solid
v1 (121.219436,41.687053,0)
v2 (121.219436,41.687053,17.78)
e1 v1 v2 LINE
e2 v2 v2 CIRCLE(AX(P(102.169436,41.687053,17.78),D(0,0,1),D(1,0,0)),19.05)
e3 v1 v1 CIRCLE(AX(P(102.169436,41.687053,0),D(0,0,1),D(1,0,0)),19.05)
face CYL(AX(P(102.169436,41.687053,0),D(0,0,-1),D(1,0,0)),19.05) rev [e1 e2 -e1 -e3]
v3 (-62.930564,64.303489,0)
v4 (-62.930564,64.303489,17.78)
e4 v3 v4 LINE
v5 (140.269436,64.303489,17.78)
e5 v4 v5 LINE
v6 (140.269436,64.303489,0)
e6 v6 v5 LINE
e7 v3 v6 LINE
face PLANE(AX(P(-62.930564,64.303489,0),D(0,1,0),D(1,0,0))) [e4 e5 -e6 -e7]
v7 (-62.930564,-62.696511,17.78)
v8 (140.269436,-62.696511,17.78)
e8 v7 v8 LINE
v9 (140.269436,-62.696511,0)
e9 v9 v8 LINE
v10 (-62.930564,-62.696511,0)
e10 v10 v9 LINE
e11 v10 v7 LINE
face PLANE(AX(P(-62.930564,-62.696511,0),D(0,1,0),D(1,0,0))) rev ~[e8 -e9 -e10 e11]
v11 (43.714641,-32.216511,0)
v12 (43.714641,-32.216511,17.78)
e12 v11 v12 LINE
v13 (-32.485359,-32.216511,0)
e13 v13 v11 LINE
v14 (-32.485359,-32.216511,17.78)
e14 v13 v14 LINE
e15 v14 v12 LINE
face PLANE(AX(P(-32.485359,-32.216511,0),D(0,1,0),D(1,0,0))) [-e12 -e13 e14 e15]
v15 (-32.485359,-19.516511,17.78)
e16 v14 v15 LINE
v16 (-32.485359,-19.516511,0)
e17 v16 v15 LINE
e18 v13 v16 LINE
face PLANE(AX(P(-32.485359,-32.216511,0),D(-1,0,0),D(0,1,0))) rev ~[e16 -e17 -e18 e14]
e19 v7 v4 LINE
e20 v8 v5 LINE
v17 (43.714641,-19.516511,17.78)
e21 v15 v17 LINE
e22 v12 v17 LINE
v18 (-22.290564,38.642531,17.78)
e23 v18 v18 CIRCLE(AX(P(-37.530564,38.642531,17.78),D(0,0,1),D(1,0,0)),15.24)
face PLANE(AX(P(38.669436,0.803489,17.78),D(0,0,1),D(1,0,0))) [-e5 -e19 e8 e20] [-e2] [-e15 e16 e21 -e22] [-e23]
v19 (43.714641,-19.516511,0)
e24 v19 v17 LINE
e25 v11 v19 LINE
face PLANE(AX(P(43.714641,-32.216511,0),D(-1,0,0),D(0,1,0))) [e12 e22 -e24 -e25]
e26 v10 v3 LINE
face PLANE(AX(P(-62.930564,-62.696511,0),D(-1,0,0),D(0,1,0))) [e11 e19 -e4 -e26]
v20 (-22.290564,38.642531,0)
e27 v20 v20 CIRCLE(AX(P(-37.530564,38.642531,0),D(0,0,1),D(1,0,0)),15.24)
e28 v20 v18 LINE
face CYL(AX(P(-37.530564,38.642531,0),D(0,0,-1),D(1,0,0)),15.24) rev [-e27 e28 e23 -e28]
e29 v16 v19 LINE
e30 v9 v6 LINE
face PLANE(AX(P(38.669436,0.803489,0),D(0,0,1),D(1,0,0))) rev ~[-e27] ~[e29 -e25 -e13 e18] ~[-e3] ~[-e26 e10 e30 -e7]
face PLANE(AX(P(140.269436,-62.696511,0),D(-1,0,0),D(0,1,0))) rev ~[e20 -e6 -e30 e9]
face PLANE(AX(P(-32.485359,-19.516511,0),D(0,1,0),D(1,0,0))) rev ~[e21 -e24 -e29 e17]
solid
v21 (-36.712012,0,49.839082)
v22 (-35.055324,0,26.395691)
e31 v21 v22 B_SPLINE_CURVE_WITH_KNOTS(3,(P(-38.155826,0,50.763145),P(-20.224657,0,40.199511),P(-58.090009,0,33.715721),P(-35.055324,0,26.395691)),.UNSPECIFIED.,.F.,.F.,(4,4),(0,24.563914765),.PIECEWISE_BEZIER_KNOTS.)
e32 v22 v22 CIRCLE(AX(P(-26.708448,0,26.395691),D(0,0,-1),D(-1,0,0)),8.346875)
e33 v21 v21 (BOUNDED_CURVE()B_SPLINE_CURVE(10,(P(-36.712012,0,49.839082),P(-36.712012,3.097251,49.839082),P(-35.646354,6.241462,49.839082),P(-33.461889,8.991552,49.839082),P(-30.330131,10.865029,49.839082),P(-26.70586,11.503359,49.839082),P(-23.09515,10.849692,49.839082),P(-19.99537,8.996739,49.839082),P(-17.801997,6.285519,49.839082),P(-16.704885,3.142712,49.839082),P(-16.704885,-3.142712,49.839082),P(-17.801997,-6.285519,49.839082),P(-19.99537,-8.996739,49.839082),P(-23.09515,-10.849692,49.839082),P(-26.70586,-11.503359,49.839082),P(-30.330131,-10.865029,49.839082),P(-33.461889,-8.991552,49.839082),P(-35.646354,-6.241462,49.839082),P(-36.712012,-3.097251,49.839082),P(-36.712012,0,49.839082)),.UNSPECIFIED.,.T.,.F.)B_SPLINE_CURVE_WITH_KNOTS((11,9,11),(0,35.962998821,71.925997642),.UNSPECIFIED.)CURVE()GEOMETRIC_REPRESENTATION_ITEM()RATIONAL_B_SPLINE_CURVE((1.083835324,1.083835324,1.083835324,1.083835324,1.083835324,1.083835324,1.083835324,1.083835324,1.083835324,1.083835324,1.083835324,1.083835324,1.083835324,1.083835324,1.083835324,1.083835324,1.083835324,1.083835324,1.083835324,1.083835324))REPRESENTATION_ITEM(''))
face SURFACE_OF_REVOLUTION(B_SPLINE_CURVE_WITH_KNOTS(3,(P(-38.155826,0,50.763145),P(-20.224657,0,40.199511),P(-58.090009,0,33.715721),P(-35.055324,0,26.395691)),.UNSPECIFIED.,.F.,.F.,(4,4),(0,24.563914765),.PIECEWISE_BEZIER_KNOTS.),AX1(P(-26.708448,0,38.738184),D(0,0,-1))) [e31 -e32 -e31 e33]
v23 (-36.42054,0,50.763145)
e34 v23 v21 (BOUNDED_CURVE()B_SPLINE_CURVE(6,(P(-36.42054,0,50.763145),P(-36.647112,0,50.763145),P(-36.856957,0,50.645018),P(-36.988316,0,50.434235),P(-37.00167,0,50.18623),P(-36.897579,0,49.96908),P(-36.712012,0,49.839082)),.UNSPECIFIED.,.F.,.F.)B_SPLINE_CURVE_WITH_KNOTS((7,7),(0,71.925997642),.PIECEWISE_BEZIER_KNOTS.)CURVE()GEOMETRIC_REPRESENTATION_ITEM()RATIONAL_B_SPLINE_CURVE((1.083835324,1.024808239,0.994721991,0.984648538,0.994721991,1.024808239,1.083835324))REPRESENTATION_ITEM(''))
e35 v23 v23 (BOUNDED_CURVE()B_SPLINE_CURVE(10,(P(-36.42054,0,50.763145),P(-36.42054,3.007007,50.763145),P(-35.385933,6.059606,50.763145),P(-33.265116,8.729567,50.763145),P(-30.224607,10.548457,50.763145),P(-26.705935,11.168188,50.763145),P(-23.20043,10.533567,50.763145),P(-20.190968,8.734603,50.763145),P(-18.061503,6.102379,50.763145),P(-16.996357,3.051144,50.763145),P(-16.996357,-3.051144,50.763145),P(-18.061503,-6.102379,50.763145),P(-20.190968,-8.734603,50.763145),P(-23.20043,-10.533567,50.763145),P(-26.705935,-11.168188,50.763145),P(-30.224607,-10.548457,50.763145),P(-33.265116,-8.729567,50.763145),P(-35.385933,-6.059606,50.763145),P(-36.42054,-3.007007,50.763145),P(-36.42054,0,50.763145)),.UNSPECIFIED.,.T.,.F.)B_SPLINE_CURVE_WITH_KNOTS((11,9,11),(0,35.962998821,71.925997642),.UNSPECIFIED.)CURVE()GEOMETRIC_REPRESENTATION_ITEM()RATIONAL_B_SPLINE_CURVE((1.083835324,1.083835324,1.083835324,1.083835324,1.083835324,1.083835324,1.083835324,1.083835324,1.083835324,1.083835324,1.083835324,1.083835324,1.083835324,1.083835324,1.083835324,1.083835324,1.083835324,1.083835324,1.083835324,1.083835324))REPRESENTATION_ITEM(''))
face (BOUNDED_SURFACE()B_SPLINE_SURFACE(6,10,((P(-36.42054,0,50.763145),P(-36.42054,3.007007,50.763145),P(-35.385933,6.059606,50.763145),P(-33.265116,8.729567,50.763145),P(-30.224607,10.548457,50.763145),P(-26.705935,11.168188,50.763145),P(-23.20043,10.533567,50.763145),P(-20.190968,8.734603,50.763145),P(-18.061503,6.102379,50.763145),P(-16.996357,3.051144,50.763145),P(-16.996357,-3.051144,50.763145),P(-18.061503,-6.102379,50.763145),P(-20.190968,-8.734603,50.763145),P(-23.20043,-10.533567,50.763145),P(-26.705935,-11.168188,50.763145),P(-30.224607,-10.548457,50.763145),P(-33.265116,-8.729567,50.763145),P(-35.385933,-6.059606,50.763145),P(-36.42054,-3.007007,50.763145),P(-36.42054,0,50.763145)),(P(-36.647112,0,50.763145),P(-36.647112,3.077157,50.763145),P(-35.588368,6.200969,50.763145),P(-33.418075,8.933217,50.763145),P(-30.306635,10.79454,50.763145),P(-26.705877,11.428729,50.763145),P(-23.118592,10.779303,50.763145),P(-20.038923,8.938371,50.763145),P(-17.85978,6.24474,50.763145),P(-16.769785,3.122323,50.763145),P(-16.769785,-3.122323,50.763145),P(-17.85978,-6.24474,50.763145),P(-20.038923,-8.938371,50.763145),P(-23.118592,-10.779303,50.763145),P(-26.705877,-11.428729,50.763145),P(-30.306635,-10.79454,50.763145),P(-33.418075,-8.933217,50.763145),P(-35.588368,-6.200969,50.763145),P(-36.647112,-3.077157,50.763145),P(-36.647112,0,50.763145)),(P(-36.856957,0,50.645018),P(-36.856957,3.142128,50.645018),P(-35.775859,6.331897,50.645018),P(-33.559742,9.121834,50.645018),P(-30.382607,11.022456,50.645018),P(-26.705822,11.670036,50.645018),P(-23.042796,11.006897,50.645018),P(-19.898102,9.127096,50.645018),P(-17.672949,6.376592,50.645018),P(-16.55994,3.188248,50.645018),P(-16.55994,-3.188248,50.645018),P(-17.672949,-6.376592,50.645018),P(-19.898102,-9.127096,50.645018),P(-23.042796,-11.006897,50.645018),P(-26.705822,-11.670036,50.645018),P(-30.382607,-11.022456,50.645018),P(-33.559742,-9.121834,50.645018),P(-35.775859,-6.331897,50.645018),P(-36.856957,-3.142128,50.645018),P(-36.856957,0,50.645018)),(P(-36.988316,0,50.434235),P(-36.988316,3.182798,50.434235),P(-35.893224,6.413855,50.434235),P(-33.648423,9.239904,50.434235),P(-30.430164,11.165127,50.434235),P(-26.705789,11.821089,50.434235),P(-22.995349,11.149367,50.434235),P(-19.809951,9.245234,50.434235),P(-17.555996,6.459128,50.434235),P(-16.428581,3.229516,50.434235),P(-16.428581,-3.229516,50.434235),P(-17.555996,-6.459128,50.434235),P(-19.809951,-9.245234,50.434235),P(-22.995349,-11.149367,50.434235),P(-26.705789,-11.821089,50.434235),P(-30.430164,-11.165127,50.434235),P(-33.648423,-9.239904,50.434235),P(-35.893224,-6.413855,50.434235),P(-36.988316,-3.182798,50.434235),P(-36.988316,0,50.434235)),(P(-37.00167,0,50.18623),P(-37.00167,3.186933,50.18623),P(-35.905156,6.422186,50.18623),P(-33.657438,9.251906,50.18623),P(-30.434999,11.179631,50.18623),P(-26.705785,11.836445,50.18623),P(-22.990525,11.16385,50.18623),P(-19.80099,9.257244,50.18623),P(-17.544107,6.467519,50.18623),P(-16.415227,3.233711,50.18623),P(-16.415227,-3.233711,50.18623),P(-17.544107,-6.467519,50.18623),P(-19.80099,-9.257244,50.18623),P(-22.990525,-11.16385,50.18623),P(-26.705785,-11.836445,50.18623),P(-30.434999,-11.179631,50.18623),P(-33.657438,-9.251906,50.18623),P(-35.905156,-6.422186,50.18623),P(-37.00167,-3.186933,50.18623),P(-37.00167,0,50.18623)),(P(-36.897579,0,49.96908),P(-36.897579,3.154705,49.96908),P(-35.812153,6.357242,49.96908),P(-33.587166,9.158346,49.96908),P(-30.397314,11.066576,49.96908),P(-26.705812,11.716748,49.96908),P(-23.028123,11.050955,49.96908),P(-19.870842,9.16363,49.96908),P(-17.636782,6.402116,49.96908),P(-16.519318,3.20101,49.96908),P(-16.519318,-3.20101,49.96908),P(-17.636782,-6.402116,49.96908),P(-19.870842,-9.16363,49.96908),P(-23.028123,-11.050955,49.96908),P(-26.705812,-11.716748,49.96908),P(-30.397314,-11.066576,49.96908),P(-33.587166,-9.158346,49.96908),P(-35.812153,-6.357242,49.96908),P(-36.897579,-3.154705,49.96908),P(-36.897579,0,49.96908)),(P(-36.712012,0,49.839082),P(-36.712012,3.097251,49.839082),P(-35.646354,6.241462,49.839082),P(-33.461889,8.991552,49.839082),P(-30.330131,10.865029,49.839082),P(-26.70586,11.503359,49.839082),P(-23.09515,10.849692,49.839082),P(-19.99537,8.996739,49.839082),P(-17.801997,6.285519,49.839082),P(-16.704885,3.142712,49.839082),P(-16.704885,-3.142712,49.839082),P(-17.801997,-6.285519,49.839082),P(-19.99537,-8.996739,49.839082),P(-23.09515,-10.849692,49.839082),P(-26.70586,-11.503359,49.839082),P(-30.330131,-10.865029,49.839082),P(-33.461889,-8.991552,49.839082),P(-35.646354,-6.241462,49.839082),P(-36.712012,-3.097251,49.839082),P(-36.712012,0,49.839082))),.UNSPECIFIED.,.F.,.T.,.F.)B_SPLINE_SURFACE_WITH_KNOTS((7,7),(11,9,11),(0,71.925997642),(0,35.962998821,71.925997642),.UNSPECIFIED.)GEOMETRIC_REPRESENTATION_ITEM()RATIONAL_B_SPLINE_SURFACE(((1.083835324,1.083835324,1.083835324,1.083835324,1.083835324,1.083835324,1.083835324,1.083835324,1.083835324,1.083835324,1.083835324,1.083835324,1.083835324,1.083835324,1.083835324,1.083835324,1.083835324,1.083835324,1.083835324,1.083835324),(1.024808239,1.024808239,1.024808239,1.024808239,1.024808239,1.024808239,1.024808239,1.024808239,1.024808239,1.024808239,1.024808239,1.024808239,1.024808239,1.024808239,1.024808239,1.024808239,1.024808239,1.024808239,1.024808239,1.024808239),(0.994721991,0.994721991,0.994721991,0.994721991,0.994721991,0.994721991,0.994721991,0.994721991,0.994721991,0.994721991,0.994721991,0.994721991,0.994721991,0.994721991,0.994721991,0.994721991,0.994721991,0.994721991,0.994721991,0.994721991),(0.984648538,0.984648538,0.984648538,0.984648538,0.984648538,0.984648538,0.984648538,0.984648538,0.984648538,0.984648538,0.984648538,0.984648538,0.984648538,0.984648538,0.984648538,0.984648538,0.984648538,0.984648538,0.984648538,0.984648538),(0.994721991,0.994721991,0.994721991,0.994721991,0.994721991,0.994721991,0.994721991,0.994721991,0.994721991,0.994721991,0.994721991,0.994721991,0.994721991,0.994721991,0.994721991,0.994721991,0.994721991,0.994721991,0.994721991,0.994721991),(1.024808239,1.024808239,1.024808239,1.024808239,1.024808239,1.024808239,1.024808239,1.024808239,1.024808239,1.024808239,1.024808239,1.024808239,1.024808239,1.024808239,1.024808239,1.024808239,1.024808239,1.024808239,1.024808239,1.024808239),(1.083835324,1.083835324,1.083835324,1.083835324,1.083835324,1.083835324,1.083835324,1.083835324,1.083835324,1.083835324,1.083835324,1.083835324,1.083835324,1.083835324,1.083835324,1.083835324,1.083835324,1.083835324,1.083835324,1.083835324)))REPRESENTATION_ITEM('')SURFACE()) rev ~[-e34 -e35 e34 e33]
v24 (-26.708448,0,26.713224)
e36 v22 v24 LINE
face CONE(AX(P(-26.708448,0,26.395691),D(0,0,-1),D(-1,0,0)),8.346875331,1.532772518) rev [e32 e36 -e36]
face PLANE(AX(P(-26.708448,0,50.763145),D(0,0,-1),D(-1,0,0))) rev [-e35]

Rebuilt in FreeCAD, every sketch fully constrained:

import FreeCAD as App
import Part
import Sketcher

V = App.Vector
Q = App.Units.Quantity


def edges_at(feature, points):
    """Names of the edges that pass closest to the given points."""
    edges = feature.Shape.Edges
    near = lambda p: min(range(len(edges)), key=lambda i: edges[i].distToShape(Part.Vertex(*p))[0])
    return sorted({f"Edge{near(p) + 1}" for p in points})


def add_polygon(sketch, points):
    """Adds a closed chain of lines whose ends are joined by coincident constraints."""
    first, n = sketch.GeometryCount, len(points)
    for a, b in zip(points, points[1:] + points[:1]):
        sketch.addGeometry(Part.LineSegment(App.Vector(*a, 0), App.Vector(*b, 0)), False)
    for i in range(n):
        sketch.addConstraint(Sketcher.Constraint("Coincident", first + i, 2, first + (i + 1) % n, 1))

doc = App.newDocument("Part")
body = doc.addObject("PartDesign::Body", "Body")

# Sketch on XY plane
sketch1 = body.newObject("Sketcher::SketchObject", "Sketch")
sketch1.AttachmentSupport = (doc.getObject("XY_Plane"), [""])
sketch1.MapMode = "FlatFace"
add_polygon(sketch1, [(-63, 64), (-63, -63), (140, -63), (140, 64)])  # lines 0-3
add_polygon(sketch1, [(44, -32), (-32, -32), (-32, -20), (44, -20)])  # lines 4-7
sketch1.addGeometry(Part.Circle(V(-38, 39, 0), V(0, 0, 1), 15), False)  # 8
sketch1.addGeometry(Part.Circle(V(102, 42, 0), V(0, 0, 1), 19), False)  # 9
sketch1.addConstraint([
    Sketcher.Constraint("Vertical", 0),
    Sketcher.Constraint("Horizontal", 1),
    Sketcher.Constraint("Vertical", 2),
    Sketcher.Constraint("Horizontal", 3),
    Sketcher.Constraint("Horizontal", 4),
    Sketcher.Constraint("Vertical", 5),
    Sketcher.Constraint("Horizontal", 6),
    Sketcher.Constraint("Vertical", 7),
    Sketcher.Constraint("Diameter", 8, Q("1.2 in")),
    Sketcher.Constraint("Diameter", 9, Q("1.5 in")),
    Sketcher.Constraint("DistanceX", 1, 1, 1, 2, Q("8 in")),
    Sketcher.Constraint("DistanceX", 4, 2, 4, 1, Q("3 in")),
    Sketcher.Constraint("DistanceY", 0, 2, 0, 1, Q("5 in")),
    Sketcher.Constraint("DistanceY", 5, 1, 5, 2, Q("0.5 in")),
    Sketcher.Constraint("DistanceX", 0, 2, 8, 3, Q("1 in")),
    Sketcher.Constraint("DistanceX", 8, 3, 9, 3, Q("5.5 in")),
    Sketcher.Constraint("DistanceY", 0, 2, 4, 2, Q("1.2 in")),
    Sketcher.Constraint("DistanceY", -1, 1, 8, 3, 38.642531),
    Sketcher.Constraint("DistanceY", 0, 2, -1, 1, 62.696511),
    Sketcher.Constraint("DistanceX", 4, 2, -1, 1, 32.485359),
    Sketcher.Constraint("DistanceX", 8, 3, -1, 1, 37.530564),
    Sketcher.Constraint("DistanceY", -1, 1, 9, 3, 41.687053),
])
pad1 = body.newObject("PartDesign::Pad", "Pad")
pad1.Profile = sketch1
pad1.Length = Q("0.7 in")
body2 = doc.addObject("PartDesign::Body", "Body001")

# Sketch on XZ plane
sketch2 = body2.newObject("Sketcher::SketchObject", "Sketch001")
sketch2.AttachmentSupport = (doc.getObject("XZ_Plane001"), [""])
sketch2.MapMode = "FlatFace"
sketch2.addGeometry([
    Part.LineSegment(V(-26.708448, 50.763145, 0), V(-38.155826, 50.763145, 0)),
    Part.BSplineCurve([V(-38.155826, 50.763145, 0), V(-20.224657, 40.199511, 0), V(-58.090009, 33.715721, 0), V(-35.055324, 26.395691, 0)], [4, 4], [0, 24.563914765], False, 3, [1, 1, 1, 1], False),
    Part.LineSegment(V(-35.055324, 26.395691, 0), V(-26.708448, 26.713224, 0)),
    Part.LineSegment(V(-26.708448, 26.713224, 0), V(-26.708448, 50.763145, 0)),
], False)
sketch2.addGeometry(Part.LineSegment(V(-26.708448, 50.763145, 0), V(-26.708448, 26.395691, 0)), True)  # axis
sketch2.addConstraint([
    Sketcher.Constraint("Block", 1),
    Sketcher.Constraint("Coincident", 0, 2, 1, 1),
    Sketcher.Constraint("Coincident", 1, 2, 2, 1),
    Sketcher.Constraint("Coincident", 2, 2, 3, 1),
    Sketcher.Constraint("Coincident", 3, 2, 0, 1),
    Sketcher.Constraint("Horizontal", 0),
    Sketcher.Constraint("Vertical", 3),
    Sketcher.Constraint("Vertical", 4),
    Sketcher.Constraint("Coincident", 4, 1, 3, 2),
    Sketcher.Constraint("DistanceX", 0, 2, 0, 1, 11.447378),
    Sketcher.Constraint("DistanceY", 3, 1, 3, 2, 24.04992),
    Sketcher.Constraint("DistanceY", 4, 2, 4, 1, 24.367454),
])
revolution = body2.newObject("PartDesign::Revolution", "Revolution")
revolution.Profile = sketch2
revolution.ReferenceAxis = (sketch2, ["Axis0"])
revolution.Angle = 360
doc.recompute()

fillet = body2.newObject("PartDesign::Fillet", "Fillet")
fillet.Base = (revolution, edges_at(revolution, [(-15.261, 0, 50.763)]))
fillet.Radius = Q("0.02 in")

doc.recompute()
